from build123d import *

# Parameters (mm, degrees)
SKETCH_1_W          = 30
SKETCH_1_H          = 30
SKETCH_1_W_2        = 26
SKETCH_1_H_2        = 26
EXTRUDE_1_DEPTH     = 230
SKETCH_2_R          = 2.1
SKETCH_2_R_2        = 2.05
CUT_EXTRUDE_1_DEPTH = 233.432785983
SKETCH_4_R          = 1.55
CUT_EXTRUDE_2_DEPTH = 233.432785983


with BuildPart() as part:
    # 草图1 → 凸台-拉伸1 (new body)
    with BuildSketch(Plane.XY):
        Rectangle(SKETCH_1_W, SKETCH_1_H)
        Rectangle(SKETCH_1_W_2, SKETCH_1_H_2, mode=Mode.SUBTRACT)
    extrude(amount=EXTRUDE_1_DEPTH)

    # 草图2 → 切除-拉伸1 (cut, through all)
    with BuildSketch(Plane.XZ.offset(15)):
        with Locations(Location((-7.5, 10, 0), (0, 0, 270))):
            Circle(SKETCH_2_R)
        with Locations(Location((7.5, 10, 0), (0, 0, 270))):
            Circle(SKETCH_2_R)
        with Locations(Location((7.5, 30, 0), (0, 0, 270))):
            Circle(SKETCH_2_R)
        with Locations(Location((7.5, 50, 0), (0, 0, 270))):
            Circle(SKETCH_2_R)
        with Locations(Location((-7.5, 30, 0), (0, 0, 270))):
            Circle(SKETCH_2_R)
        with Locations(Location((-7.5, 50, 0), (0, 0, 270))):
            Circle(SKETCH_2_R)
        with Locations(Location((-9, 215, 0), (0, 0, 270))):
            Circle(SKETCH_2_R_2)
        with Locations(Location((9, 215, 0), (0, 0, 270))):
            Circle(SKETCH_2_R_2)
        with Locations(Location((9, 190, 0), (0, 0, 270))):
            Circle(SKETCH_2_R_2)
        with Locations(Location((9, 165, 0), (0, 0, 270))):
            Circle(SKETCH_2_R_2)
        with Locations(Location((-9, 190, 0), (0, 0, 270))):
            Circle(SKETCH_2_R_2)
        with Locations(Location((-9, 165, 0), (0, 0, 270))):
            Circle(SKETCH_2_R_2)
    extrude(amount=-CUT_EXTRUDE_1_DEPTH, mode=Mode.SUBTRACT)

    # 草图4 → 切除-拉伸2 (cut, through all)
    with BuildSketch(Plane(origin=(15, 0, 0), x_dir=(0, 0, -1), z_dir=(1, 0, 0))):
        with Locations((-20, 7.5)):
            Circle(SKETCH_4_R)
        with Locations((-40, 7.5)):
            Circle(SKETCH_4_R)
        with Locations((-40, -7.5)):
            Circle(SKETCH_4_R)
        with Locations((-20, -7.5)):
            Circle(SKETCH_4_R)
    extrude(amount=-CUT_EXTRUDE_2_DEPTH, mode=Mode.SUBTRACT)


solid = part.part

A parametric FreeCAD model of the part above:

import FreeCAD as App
import Part
import Sketcher

V = App.Vector
Q = App.Units.Quantity

doc = App.newDocument("Part")
body = doc.addObject("PartDesign::Body", "Body")

# Sketch on XY plane
sketch1 = body.newObject("Sketcher::SketchObject", "Sketch")
sketch1.AttachmentSupport = (doc.getObject("XY_Plane"), [""])
sketch1.MapMode = "FlatFace"
sketch1.addGeometry([
    Part.LineSegment(V(-15, 15, 0), V(-15, -15, 0)),  # 0
    Part.LineSegment(V(-15, -15, 0), V(15, -15, 0)),  # 1
    Part.LineSegment(V(15, -15, 0), V(15, 15, 0)),  # 2
    Part.LineSegment(V(15, 15, 0), V(-15, 15, 0)),  # 3
    Part.LineSegment(V(13, -13, 0), V(-13, -13, 0)),  # 4
    Part.LineSegment(V(-13, -13, 0), V(-13, 13, 0)),  # 5
    Part.LineSegment(V(-13, 13, 0), V(13, 13, 0)),  # 6
    Part.LineSegment(V(13, 13, 0), V(13, -13, 0)),  # 7
], False)
sketch1.addConstraint([
    Sketcher.Constraint("Coincident", 0, 2, 1, 1),
    Sketcher.Constraint("Coincident", 1, 2, 2, 1),
    Sketcher.Constraint("Coincident", 2, 2, 3, 1),
    Sketcher.Constraint("Coincident", 3, 2, 0, 1),
    Sketcher.Constraint("Coincident", 4, 2, 5, 1),
    Sketcher.Constraint("Coincident", 5, 2, 6, 1),
    Sketcher.Constraint("Coincident", 6, 2, 7, 1),
    Sketcher.Constraint("Coincident", 7, 2, 4, 1),
    Sketcher.Constraint("Vertical", 0),
    Sketcher.Constraint("Horizontal", 1),
    Sketcher.Constraint("Vertical", 2),
    Sketcher.Constraint("Horizontal", 3),
    Sketcher.Constraint("Horizontal", 4),
    Sketcher.Constraint("Vertical", 5),
    Sketcher.Constraint("Horizontal", 6),
    Sketcher.Constraint("Vertical", 7),
    Sketcher.Constraint("Symmetric", 0, 2, 2, 2, -1, 1),
    Sketcher.Constraint("Symmetric", 4, 2, 6, 2, -1, 1),
    Sketcher.Constraint("Equal", 3, 0),
    Sketcher.Constraint("Equal", 6, 5),
    Sketcher.Constraint("DistanceX", 1, 1, 1, 2, Q("30 mm")),
    Sketcher.Constraint("DistanceX", 4, 2, 4, 1, Q("26 mm")),
])
pad1 = body.newObject("PartDesign::Pad", "Pad")
pad1.Profile = sketch1
pad1.Length = 230

# Sketch on XZ plane
sketch2 = body.newObject("Sketcher::SketchObject", "Sketch001")
sketch2.AttachmentSupport = (doc.getObject("XZ_Plane"), [""])
sketch2.MapMode = "FlatFace"
sketch2.AttachmentOffset = App.Placement(V(0, 0, 15), App.Rotation())
sketch2.addGeometry([
    Part.Circle(V(-7.5, 10, 0), V(0, 0, 1), 2.1),  # 0
    Part.Circle(V(7.5, 10, 0), V(0, 0, 1), 2.1),  # 1
    Part.Circle(V(7.5, 30, 0), V(0, 0, 1), 2.1),  # 2
    Part.Circle(V(7.5, 50, 0), V(0, 0, 1), 2.1),  # 3
    Part.Circle(V(-7.5, 30, 0), V(0, 0, 1), 2.1),  # 4
    Part.Circle(V(-7.5, 50, 0), V(0, 0, 1), 2.1),  # 5
    Part.Circle(V(-9, 215, 0), V(0, 0, 1), 2),  # 6
    Part.Circle(V(9, 215, 0), V(0, 0, 1), 2),  # 7
    Part.Circle(V(9, 190, 0), V(0, 0, 1), 2),  # 8
    Part.Circle(V(9, 165, 0), V(0, 0, 1), 2),  # 9
    Part.Circle(V(-9, 190, 0), V(0, 0, 1), 2),  # 10
    Part.Circle(V(-9, 165, 0), V(0, 0, 1), 2),  # 11
], False)
sketch2.addConstraint([
    Sketcher.Constraint("Equal", 0, 1),
    Sketcher.Constraint("Equal", 1, 2),
    Sketcher.Constraint("Equal", 2, 3),
    Sketcher.Constraint("Equal", 3, 4),
    Sketcher.Constraint("Equal", 4, 5),
    Sketcher.Constraint("Equal", 6, 7),
    Sketcher.Constraint("Equal", 7, 8),
    Sketcher.Constraint("Equal", 8, 9),
    Sketcher.Constraint("Equal", 9, 10),
    Sketcher.Constraint("Equal", 10, 11),
    Sketcher.Constraint("Symmetric", 0, 3, 1, 3, -2),
    Sketcher.Constraint("Symmetric", 2, 3, 4, 3, -2),
    Sketcher.Constraint("Symmetric", 3, 3, 5, 3, -2),
    Sketcher.Constraint("Symmetric", 6, 3, 7, 3, -2),
    Sketcher.Constraint("Symmetric", 8, 3, 10, 3, -2),
    Sketcher.Constraint("Symmetric", 9, 3, 11, 3, -2),
    Sketcher.Constraint("Vertical", 1, 3, 2, 3),
    Sketcher.Constraint("Vertical", 2, 3, 3, 3),
    Sketcher.Constraint("Vertical", 7, 3, 8, 3),
    Sketcher.Constraint("Vertical", 8, 3, 9, 3),
    Sketcher.Constraint("Diameter", 0, Q("4.2 mm")),
    Sketcher.Constraint("Diameter", 6, Q("4.1 mm")),
    Sketcher.Constraint("DistanceY", -1, 1, 0, 3, Q("10 mm")),
    Sketcher.Constraint("DistanceY", -1, 1, 2, 3, Q("30 mm")),
    Sketcher.Constraint("DistanceY", -1, 1, 3, 3, Q("50 mm")),
    Sketcher.Constraint("DistanceX", 6, 3, -1, 1, Q("9 mm")),
    Sketcher.Constraint("DistanceY", -1, 1, 6, 3, Q("215 mm")),
    Sketcher.Constraint("DistanceY", -1, 1, 8, 3, Q("190 mm")),
    Sketcher.Constraint("DistanceY", -1, 1, 9, 3, Q("165 mm")),
    Sketcher.Constraint("DistanceX", 0, 3, 1, 3, Q("15 mm")),
])
pocket1 = body.newObject("PartDesign::Pocket", "Pocket")
pocket1.Profile = sketch2
pocket1.Type = "ThroughAll"

# Sketch on YZ plane
sketch3 = body.newObject("Sketcher::SketchObject", "Sketch002")
sketch3.AttachmentSupport = (doc.getObject("YZ_Plane"), [""])
sketch3.MapMode = "FlatFace"
sketch3.AttachmentOffset = App.Placement(V(0, 0, 15), App.Rotation())
sketch3.addGeometry([
    Part.Circle(V(7.5, 20, 0), V(0, 0, 1), 1.6),
    Part.Circle(V(7.5, 40, 0), V(0, 0, 1), 1.6),
    Part.Circle(V(-7.5, 40, 0), V(0, 0, 1), 1.6),
    Part.Circle(V(-7.5, 20, 0), V(0, 0, 1), 1.6),
], False)
sketch3.addConstraint([
    Sketcher.Constraint("Equal", 0, 1),
    Sketcher.Constraint("Equal", 1, 2),
    Sketcher.Constraint("Equal", 2, 3),
    Sketcher.Constraint("Symmetric", 1, 3, 2, 3, -2),
    Sketcher.Constraint("Symmetric", 0, 3, 3, 3, -2),
    Sketcher.Constraint("Vertical", 0, 3, 1, 3),
    Sketcher.Constraint("Diameter", 0, Q("3.1 mm")),
    Sketcher.Constraint("DistanceY", -1, 1, 0, 3, Q("20 mm")),
    Sketcher.Constraint("DistanceY", -1, 1, 1, 3, Q("40 mm")),
    Sketcher.Constraint("DistanceX", 2, 3, 1, 3, Q("15 mm")),
])
pocket2 = body.newObject("PartDesign::Pocket", "Pocket001")
pocket2.Profile = sketch3
pocket2.Type = "ThroughAll"

doc.recompute()
